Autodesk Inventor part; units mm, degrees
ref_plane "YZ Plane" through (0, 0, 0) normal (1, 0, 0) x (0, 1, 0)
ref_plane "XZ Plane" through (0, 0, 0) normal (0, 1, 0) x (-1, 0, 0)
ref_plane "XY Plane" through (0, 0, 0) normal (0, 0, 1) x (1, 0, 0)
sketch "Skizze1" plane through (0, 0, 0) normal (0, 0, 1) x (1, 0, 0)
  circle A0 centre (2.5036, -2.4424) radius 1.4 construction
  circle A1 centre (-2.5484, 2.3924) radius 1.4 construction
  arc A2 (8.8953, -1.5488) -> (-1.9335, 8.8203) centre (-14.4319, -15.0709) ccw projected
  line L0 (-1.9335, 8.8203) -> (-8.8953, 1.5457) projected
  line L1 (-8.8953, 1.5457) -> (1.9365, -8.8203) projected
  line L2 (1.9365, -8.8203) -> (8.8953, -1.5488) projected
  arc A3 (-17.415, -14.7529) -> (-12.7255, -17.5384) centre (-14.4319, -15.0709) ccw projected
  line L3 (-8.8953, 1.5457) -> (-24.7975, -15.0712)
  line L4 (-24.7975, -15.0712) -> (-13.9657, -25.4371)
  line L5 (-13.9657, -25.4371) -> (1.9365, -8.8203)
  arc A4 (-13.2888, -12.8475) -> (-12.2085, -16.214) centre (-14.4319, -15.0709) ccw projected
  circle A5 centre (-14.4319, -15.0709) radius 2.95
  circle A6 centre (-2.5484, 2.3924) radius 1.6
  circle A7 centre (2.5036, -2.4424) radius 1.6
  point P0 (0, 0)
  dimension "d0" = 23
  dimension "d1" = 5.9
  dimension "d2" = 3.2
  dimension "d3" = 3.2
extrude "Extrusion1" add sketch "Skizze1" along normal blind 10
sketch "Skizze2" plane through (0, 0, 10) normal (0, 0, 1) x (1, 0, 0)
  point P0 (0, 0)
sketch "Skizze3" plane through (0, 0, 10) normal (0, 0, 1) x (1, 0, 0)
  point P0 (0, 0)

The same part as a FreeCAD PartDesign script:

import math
import FreeCAD as App
import Part
import Sketcher

V = App.Vector
Q = App.Units.Quantity

doc = App.newDocument("Part")
params = doc.addObject("Spreadsheet::Sheet", "Params")
for row, (alias, value) in enumerate([
    ("sketch1_diameter", "3.2 mm"),
    ("sketch1_diameter2", "5.9 mm"),
    ("sketch1_length", "23 mm"),
    ("pad1_length", "10 mm"),
], start=1):
    params.set(f"A{row}", alias)
    params.set(f"B{row}", "=" + value)
    params.setAlias(f"B{row}", alias)

body = doc.addObject("PartDesign::Body", "Body")

# Sketch on XY plane
sketch1 = body.newObject("Sketcher::SketchObject", "Sketch")
sketch1.AttachmentSupport = (doc.getObject("XY_Plane"), [""])
sketch1.MapMode = "FlatFace"
sketch1.addGeometry(Part.LineSegment(V(1.9, -8.8, 0), V(8.9, -1.5, 0)), False)
sketch1.addGeometry(Part.ArcOfCircle(Part.Circle(V(-14.4, -15.1, 0), V(0, 0, 1), 27), math.radians(30), math.radians(62)), False)
sketch1.addGeometry(Part.LineSegment(V(-1.9, 8.8, 0), V(-8.9, 1.5, 0)), False)
sketch1.addGeometry(Part.LineSegment(V(-8.9, 1.5, 0), V(-24.8, -15.1, 0)), False)
sketch1.addGeometry(Part.LineSegment(V(-24.8, -15.1, 0), V(-14, -25.4, 0)), False)
sketch1.addGeometry(Part.LineSegment(V(-14, -25.4, 0), V(1.9, -8.8, 0)), False)
sketch1.addGeometry(Part.Circle(V(2.5, -2.4, 0), V(0, 0, 1), 1.6), False)
sketch1.addGeometry(Part.Circle(V(-2.5, 2.4, 0), V(0, 0, 1), 1.6), False)
sketch1.addGeometry(Part.Circle(V(-14.4, -15.1, 0), V(0, 0, 1), 3), False)
sketch1.addConstraint(Sketcher.Constraint("Coincident", 0, 2, 1, 1))
sketch1.addConstraint(Sketcher.Constraint("Coincident", 1, 2, 2, 1))
sketch1.addConstraint(Sketcher.Constraint("Coincident", 2, 2, 3, 1))
sketch1.addConstraint(Sketcher.Constraint("Coincident", 3, 2, 4, 1))
sketch1.addConstraint(Sketcher.Constraint("Coincident", 4, 2, 5, 1))
sketch1.addConstraint(Sketcher.Constraint("Coincident", 5, 2, 0, 1))
sketch1.addConstraint(Sketcher.Constraint("Equal", 6, 7))
sketch1.addConstraint(Sketcher.Constraint("Parallel", 0, 2))
sketch1.addConstraint(Sketcher.Constraint("Parallel", 2, 3))
sketch1.addConstraint(Sketcher.Constraint("Perpendicular", 3, 4))
sketch1.addConstraint(Sketcher.Constraint("Perpendicular", 4, 5))
sketch1.addConstraint(Sketcher.Constraint("Equal", 3, 5))
sketch1.addConstraint(Sketcher.Constraint("Diameter", 6, 3.2))
sketch1.addConstraint(Sketcher.Constraint("Diameter", 8, 5.9))
sketch1.addConstraint(Sketcher.Constraint("Distance", 3, 23.0))
sketch1.addConstraint(Sketcher.Constraint("Angle", 0, Q("46.2588 deg")))
sketch1.addConstraint(Sketcher.Constraint("Radius", 1, 26.9616))
sketch1.addConstraint(Sketcher.Constraint("DistanceY", 1, 3, -1, 1, 15.07))
sketch1.addConstraint(Sketcher.Constraint("Distance", 2, 10.069))
sketch1.addConstraint(Sketcher.Constraint("DistanceX", 8, 3, -1, 1, 14.432))
sketch1.addConstraint(Sketcher.Constraint("DistanceY", 8, 3, -1, 1, 15.071))
sketch1.addConstraint(Sketcher.Constraint("DistanceY", 4, 2, -1, 1, 25.437))
sketch1.addConstraint(Sketcher.Constraint("DistanceX", 7, 3, 6, 3, 5.052))
sketch1.addConstraint(Sketcher.Constraint("DistanceX", 1, 3, 0, 2, 23.326))
sketch1.addConstraint(Sketcher.Constraint("DistanceX", 7, 3, 1, 2, 0.615))
sketch1.addConstraint(Sketcher.Constraint("DistanceY", 7, 3, 1, 2, 6.428))
sketch1.addConstraint(Sketcher.Constraint("DistanceY", 6, 3, 2, 2, 3.988))
sketch1.addConstraint(Sketcher.Constraint("DistanceX", 1, 3, -1, 1, 14.4308))
sketch1.setExpression("Constraints[12]", "Params.sketch1_diameter")
sketch1.setExpression("Constraints[13]", "Params.sketch1_diameter2")
sketch1.setExpression("Constraints[14]", "Params.sketch1_length")
pad1 = body.newObject("PartDesign::Pad", "Pad")
pad1.Profile = sketch1
pad1.setExpression("Length", "Params.pad1_length")

doc.recompute()
